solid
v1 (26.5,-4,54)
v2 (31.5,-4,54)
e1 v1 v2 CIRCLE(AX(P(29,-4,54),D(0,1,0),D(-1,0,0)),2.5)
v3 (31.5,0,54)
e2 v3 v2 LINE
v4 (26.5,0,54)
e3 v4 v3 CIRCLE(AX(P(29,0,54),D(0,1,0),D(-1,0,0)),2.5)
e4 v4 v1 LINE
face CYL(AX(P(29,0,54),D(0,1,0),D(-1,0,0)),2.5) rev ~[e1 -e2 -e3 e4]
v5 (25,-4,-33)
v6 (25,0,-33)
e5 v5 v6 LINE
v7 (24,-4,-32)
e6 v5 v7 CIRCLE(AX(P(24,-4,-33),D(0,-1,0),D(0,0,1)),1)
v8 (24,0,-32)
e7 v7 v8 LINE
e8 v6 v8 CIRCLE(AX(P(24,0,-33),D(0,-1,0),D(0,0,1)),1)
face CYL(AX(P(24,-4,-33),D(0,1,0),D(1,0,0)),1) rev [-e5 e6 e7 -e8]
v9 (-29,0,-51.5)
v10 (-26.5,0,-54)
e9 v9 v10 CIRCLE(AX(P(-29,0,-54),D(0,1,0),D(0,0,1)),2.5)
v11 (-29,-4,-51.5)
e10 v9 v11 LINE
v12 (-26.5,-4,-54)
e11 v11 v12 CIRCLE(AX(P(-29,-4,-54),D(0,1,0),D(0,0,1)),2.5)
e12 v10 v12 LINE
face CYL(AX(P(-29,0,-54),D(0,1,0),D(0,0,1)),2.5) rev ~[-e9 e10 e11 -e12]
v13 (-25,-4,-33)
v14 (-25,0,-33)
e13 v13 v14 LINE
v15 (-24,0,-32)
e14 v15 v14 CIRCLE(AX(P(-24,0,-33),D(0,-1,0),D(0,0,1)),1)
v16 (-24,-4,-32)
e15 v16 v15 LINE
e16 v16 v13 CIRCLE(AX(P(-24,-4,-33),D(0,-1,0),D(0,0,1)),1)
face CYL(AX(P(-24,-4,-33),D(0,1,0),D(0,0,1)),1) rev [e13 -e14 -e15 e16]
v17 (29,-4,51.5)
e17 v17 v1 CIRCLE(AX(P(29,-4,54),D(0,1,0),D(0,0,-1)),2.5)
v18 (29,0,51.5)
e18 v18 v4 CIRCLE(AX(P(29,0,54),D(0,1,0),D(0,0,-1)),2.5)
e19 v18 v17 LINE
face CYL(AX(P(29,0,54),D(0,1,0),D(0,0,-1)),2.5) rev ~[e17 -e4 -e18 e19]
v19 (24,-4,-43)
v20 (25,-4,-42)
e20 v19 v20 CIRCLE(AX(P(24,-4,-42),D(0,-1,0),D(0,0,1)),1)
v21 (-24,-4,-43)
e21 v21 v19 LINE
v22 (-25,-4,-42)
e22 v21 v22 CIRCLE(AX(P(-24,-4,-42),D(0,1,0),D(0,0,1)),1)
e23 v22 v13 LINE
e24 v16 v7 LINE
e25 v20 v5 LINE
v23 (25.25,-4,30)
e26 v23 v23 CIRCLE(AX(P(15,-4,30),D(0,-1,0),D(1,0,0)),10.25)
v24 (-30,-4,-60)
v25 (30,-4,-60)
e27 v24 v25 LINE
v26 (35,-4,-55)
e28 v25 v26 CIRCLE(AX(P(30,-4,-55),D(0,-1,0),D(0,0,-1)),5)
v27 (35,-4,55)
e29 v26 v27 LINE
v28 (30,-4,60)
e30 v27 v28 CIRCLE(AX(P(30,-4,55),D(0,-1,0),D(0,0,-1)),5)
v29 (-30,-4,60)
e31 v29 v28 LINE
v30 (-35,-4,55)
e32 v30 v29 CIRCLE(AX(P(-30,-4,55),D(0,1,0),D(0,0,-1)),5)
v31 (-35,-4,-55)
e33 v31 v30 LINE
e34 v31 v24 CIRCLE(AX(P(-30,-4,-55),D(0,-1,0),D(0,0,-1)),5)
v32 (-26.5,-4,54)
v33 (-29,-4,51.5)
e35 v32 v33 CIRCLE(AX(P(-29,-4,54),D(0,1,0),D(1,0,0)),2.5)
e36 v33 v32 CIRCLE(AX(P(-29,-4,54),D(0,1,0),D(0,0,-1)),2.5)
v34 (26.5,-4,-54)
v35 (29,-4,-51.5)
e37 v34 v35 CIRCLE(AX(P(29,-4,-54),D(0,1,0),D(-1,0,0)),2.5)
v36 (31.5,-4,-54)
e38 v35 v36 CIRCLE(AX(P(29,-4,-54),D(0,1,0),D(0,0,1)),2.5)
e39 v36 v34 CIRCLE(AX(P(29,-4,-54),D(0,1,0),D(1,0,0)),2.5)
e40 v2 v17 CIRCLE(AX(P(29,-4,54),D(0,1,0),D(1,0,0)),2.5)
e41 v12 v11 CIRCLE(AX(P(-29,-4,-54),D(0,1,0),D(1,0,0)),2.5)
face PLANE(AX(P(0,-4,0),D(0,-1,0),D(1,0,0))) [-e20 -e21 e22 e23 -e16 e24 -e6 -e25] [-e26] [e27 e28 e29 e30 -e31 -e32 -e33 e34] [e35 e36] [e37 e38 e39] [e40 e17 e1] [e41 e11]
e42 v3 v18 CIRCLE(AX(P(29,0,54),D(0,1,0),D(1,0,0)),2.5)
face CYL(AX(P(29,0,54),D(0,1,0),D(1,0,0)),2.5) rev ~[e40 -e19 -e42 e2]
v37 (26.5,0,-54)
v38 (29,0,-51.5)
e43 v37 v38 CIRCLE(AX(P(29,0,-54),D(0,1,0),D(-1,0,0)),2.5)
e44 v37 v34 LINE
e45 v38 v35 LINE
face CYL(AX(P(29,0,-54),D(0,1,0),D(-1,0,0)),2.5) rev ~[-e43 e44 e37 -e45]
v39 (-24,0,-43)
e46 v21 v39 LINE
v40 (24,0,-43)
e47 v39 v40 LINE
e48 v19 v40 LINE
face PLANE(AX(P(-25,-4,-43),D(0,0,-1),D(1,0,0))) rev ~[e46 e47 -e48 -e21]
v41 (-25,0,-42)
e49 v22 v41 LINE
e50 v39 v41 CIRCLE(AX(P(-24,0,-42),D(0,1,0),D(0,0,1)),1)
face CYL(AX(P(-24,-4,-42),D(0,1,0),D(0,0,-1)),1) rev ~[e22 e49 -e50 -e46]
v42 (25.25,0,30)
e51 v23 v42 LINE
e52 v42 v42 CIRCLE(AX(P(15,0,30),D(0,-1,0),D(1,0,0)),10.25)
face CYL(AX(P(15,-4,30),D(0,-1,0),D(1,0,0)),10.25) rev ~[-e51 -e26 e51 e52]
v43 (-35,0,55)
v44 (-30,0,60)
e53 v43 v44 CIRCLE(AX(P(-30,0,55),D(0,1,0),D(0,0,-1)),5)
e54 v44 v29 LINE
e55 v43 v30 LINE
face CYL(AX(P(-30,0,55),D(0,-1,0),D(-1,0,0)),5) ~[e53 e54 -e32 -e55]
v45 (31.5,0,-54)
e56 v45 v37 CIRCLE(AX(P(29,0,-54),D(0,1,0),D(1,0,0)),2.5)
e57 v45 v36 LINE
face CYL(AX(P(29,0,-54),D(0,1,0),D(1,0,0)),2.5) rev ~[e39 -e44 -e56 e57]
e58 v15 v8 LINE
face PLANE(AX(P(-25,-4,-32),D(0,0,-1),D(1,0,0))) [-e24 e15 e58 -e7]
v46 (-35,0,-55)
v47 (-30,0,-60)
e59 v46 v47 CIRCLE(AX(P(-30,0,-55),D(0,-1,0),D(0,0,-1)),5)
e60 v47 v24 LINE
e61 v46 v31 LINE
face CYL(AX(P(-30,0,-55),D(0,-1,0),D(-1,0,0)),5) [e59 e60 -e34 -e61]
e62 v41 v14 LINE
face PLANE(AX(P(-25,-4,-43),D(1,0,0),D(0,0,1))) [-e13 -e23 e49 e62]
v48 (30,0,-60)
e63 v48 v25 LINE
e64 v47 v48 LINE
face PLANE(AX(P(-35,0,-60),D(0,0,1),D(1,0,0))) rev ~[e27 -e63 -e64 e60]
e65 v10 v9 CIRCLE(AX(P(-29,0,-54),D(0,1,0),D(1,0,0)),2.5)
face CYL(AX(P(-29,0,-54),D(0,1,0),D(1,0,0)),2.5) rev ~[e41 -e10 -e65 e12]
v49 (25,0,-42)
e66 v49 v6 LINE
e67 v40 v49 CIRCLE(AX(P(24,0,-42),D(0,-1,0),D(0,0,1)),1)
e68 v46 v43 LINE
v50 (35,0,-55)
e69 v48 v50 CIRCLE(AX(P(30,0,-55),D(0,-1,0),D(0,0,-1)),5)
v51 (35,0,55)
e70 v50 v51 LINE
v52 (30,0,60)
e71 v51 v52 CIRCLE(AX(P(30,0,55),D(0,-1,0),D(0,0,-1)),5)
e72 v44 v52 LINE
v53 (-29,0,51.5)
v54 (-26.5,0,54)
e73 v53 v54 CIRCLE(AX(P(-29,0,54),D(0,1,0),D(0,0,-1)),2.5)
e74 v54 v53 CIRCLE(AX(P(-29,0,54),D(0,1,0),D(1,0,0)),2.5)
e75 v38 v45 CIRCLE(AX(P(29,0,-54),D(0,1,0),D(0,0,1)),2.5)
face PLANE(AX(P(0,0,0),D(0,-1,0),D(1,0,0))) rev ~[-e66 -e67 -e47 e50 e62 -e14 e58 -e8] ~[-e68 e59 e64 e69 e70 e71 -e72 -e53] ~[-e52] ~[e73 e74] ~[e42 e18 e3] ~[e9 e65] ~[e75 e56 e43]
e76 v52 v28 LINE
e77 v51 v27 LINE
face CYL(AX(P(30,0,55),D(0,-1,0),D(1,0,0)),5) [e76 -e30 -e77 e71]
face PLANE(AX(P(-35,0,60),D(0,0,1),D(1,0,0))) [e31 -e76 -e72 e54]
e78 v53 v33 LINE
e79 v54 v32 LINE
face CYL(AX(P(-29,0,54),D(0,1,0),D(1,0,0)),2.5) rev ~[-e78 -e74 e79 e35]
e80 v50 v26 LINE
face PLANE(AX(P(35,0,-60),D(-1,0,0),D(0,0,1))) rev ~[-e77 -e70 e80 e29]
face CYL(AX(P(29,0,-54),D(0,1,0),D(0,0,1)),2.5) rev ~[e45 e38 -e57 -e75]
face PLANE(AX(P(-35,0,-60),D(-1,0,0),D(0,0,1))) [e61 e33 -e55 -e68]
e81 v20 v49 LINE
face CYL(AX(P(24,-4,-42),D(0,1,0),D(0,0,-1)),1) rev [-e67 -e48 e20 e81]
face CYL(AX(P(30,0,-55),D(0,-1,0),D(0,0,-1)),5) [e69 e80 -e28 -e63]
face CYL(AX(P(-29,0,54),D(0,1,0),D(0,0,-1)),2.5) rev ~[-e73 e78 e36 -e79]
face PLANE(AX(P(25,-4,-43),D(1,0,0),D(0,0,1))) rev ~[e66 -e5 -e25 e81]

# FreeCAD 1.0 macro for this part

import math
import FreeCAD as App
import Part
import Sketcher

V = App.Vector
Q = App.Units.Quantity


def edges_at(feature, points):
    """Names of the edges that pass closest to the given points."""
    edges = feature.Shape.Edges
    near = lambda p: min(range(len(edges)), key=lambda i: edges[i].distToShape(Part.Vertex(*p))[0])
    return sorted({f"Edge{near(p) + 1}" for p in points})


def add_polygon(sketch, points):
    """Adds a closed chain of lines whose ends are joined by coincident constraints."""
    first, n = sketch.GeometryCount, len(points)
    for a, b in zip(points, points[1:] + points[:1]):
        sketch.addGeometry(Part.LineSegment(App.Vector(*a, 0), App.Vector(*b, 0)), False)
    for i in range(n):
        sketch.addConstraint(Sketcher.Constraint("Coincident", first + i, 2, first + (i + 1) % n, 1))

doc = App.newDocument("Part")
body = doc.addObject("PartDesign::Body", "Body")

sketch1 = body.newObject("Sketcher::SketchObject", "Sketch")
sketch1.AttachmentSupport = (doc.getObject("XZ_Plane"), [""])
sketch1.MapMode = "FlatFace"
add_polygon(sketch1, [(-35, 60), (-35, -60), (35, -60), (35, 60)])
sketch1.addGeometry(Part.ArcOfCircle(Part.Circle(V(-29, -54, 0), V(0, 0, 1), 2.5), math.radians(90), math.radians(360)), False)
sketch1.addGeometry(Part.ArcOfCircle(Part.Circle(V(-29, -54, 0), V(0, 0, 1), 2.5), math.radians(0), math.radians(90)), False)
sketch1.addGeometry(Part.ArcOfCircle(Part.Circle(V(29, -54, 0), V(0, 0, 1), 2.5), math.radians(180), math.radians(360)), False)
sketch1.addGeometry(Part.ArcOfCircle(Part.Circle(V(29, -54, 0), V(0, 0, 1), 2.5), math.radians(90), math.radians(180)), False)
sketch1.addGeometry(Part.ArcOfCircle(Part.Circle(V(29, -54, 0), V(0, 0, 1), 2.5), math.radians(0), math.radians(90)), False)
sketch1.addGeometry(Part.ArcOfCircle(Part.Circle(V(29, 54, 0), V(0, 0, 1), 2.5), math.radians(-90), math.radians(0)), False)
sketch1.addGeometry(Part.ArcOfCircle(Part.Circle(V(29, 54, 0), V(0, 0, 1), 2.5), math.radians(180), math.radians(270)), False)
sketch1.addGeometry(Part.ArcOfCircle(Part.Circle(V(29, 54, 0), V(0, 0, 1), 2.5), math.radians(0), math.radians(180)), False)
sketch1.addGeometry(Part.ArcOfCircle(Part.Circle(V(-29, 54, 0), V(0, 0, 1), 2.5), math.radians(0), math.radians(270)), False)
sketch1.addGeometry(Part.ArcOfCircle(Part.Circle(V(-29, 54, 0), V(0, 0, 1), 2.5), math.radians(-90), math.radians(0)), False)
sketch1.addConstraint([
    Sketcher.Constraint("Tangent", 4, 1, 5, 2),
    Sketcher.Constraint("Coincident", 5, 1, 4, 2),
    Sketcher.Constraint("Tangent", 6, 1, 7, 2),
    Sketcher.Constraint("Tangent", 7, 1, 8, 2),
    Sketcher.Constraint("Tangent", 8, 1, 6, 2),
    Sketcher.Constraint("Tangent", 9, 1, 10, 2),
    Sketcher.Constraint("Tangent", 10, 1, 11, 2),
    Sketcher.Constraint("Tangent", 11, 1, 9, 2),
    Sketcher.Constraint("Tangent", 12, 1, 13, 2),
    Sketcher.Constraint("Coincident", 13, 1, 12, 2),
    Sketcher.Constraint("Vertical", 0),
    Sketcher.Constraint("Horizontal", 1),
    Sketcher.Constraint("Vertical", 2),
    Sketcher.Constraint("Horizontal", 3),
    Sketcher.Constraint("Equal", 5, 6),
    Sketcher.Constraint("Equal", 8, 9),
    Sketcher.Constraint("Equal", 11, 12),
    Sketcher.Constraint("Symmetric", 4, 3, 9, 3, -1, 1),
    Sketcher.Constraint("Symmetric", 6, 3, 12, 3, -1, 1),
    Sketcher.Constraint("Symmetric", 0, 2, 2, 2, -1, 1),
    Sketcher.Constraint("Symmetric", 4, 3, 6, 3, -2),
    Sketcher.Constraint("Horizontal", 8, 3, 5, 1),
    Sketcher.Constraint("Horizontal", 5, 1, 6, 1),
    Sketcher.Constraint("Horizontal", 6, 1, 8, 1),
    Sketcher.Constraint("Horizontal", 13, 3, 10, 1),
    Sketcher.Constraint("Horizontal", 10, 1, 11, 1),
    Sketcher.Constraint("Horizontal", 11, 1, 12, 1),
    Sketcher.Constraint("Vertical", 13, 3, 4, 1),
    Sketcher.Constraint("Vertical", 11, 3, 7, 1),
    Sketcher.Constraint("Vertical", 7, 1, 9, 1),
    Sketcher.Constraint("Vertical", 4, 1, 13, 1),
    Sketcher.Constraint("Radius", 4, Q("2.5 mm")),
    Sketcher.Constraint("DistanceX", 1, 1, 1, 2, Q("70 mm")),
    Sketcher.Constraint("DistanceY", 0, 2, 0, 1, Q("120 mm")),
    Sketcher.Constraint("DistanceX", 4, 3, -1, 1, Q("29 mm")),
    Sketcher.Constraint("DistanceY", 4, 3, -1, 1, Q("54 mm")),
])
pad1 = body.newObject("PartDesign::Pad", "Pad")
pad1.Profile = sketch1
pad1.Length = 4
doc.recompute()

fillet = body.newObject("PartDesign::Fillet", "Fillet")
fillet.Base = (pad1, edges_at(pad1, [
    (-35, -2, 60),
    (35, -2, 60),
    (-35, -2, -60),
    (35, -2, -60),
]))
fillet.Radius = 5

sketch2 = body.newObject("Sketcher::SketchObject", "Sketch001")
sketch2.AttachmentSupport = (doc.getObject("XZ_Plane"), [""])
sketch2.MapMode = "FlatFace"
sketch2.AttachmentOffset = App.Placement(V(0, 0, 4), App.Rotation())
sketch2.addGeometry(Part.Circle(V(15, 30, 0), V(0, 0, 1), 10.25), False)
sketch2.addConstraint([
    Sketcher.Constraint("Diameter", 0, Q("20.5 mm")),
    Sketcher.Constraint("DistanceX", -1, 1, 0, 3, Q("15 mm")),
    Sketcher.Constraint("DistanceY", -1, 1, 0, 3, Q("30 mm")),
])
pocket1 = body.newObject("PartDesign::Pocket", "Pocket")
pocket1.Profile = sketch2
pocket1.Length = 25

sketch3 = body.newObject("Sketcher::SketchObject", "Sketch002")
sketch3.AttachmentSupport = (doc.getObject("XZ_Plane"), [""])
sketch3.MapMode = "FlatFace"
sketch3.AttachmentOffset = App.Placement(V(0, 0, 4), App.Rotation())
add_polygon(sketch3, [(-25, -32), (-25, -43), (25, -43), (25, -32)])
sketch3.addConstraint([
    Sketcher.Constraint("Vertical", 0),
    Sketcher.Constraint("Horizontal", 1),
    Sketcher.Constraint("Vertical", 2),
    Sketcher.Constraint("Horizontal", 3),
    Sketcher.Constraint("DistanceX", 1, 1, 1, 2, Q("50 mm")),
    Sketcher.Constraint("DistanceY", 0, 2, 0, 1, Q("11 mm")),
    Sketcher.Constraint("DistanceX", 0, 2, -1, 1, Q("25 mm")),
    Sketcher.Constraint("DistanceY", 0, 2, -1, 1, Q("43 mm")),
])
pocket2 = body.newObject("PartDesign::Pocket", "Pocket001")
pocket2.Profile = sketch3
pocket2.Length = 25
doc.recompute()

fillet2 = body.newObject("PartDesign::Fillet", "Fillet001")
fillet2.Base = (pocket2, edges_at(pocket2, [
    (-25, -2, -43),
    (-25, -2, -32),
    (25, -2, -32),
    (25, -2, -43),
]))
fillet2.Radius = 1

doc.recompute()
